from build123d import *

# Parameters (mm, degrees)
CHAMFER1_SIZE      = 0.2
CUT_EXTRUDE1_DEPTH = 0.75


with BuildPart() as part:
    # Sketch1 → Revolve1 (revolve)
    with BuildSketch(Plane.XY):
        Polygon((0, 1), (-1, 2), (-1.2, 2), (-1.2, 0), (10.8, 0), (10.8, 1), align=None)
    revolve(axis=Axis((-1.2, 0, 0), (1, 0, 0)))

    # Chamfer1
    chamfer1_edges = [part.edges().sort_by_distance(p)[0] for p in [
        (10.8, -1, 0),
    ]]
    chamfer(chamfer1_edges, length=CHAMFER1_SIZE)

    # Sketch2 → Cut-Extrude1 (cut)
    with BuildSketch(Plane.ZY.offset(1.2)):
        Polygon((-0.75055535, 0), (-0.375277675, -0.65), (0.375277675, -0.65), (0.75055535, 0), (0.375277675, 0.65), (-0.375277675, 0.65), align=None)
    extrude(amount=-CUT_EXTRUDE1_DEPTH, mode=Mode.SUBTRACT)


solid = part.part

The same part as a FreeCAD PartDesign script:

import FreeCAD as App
import Part
import Sketcher
Q = App.Units.Quantity


def edges_at(feature, points):
    """Names of the edges that pass closest to the given points."""
    edges = feature.Shape.Edges
    near = lambda p: min(range(len(edges)), key=lambda i: edges[i].distToShape(Part.Vertex(*p))[0])
    return sorted({f"Edge{near(p) + 1}" for p in points})

doc = App.newDocument("Part")
body = doc.addObject("PartDesign::Body", "Body")

sketch1 = body.newObject("Sketcher::SketchObject", "Sketch")
sketch1.AttachmentSupport = (doc.getObject("XY_Plane"), [""])
sketch1.MapMode = "FlatFace"
sketch1.addGeometry(Part.LineSegment(App.Vector(0, 1, 0), App.Vector(-1, 2, 0)), False)
sketch1.addGeometry(Part.LineSegment(App.Vector(-1, 2, 0), App.Vector(-1.2, 2, 0)), False)
sketch1.addGeometry(Part.LineSegment(App.Vector(-1.2, 2, 0), App.Vector(-1.2, 0, 0)), False)
sketch1.addGeometry(Part.LineSegment(App.Vector(-1.2, 0, 0), App.Vector(10.8, 0, 0)), False)
sketch1.addGeometry(Part.LineSegment(App.Vector(10.8, 0, 0), App.Vector(10.8, 1, 0)), False)
sketch1.addGeometry(Part.LineSegment(App.Vector(10.8, 1, 0), App.Vector(0, 1, 0)), False)
sketch1.addConstraint(Sketcher.Constraint("Coincident", 0, 2, 1, 1))
sketch1.addConstraint(Sketcher.Constraint("Coincident", 1, 2, 2, 1))
sketch1.addConstraint(Sketcher.Constraint("Coincident", 2, 2, 3, 1))
sketch1.addConstraint(Sketcher.Constraint("Coincident", 3, 2, 4, 1))
sketch1.addConstraint(Sketcher.Constraint("Coincident", 4, 2, 5, 1))
sketch1.addConstraint(Sketcher.Constraint("Coincident", 5, 2, 0, 1))
sketch1.addConstraint(Sketcher.Constraint("Horizontal", 1))
sketch1.addConstraint(Sketcher.Constraint("Vertical", 2))
sketch1.addConstraint(Sketcher.Constraint("Horizontal", 3))
sketch1.addConstraint(Sketcher.Constraint("Vertical", 4))
sketch1.addConstraint(Sketcher.Constraint("Horizontal", 5))
sketch1.addConstraint(Sketcher.Constraint("PointOnObject", 2, 2, -1))
sketch1.addConstraint(Sketcher.Constraint("PointOnObject", 5, 2, -2))
sketch1.addConstraint(Sketcher.Constraint("DistanceX", 3, 1, 3, 2, Q("12 mm")))
sketch1.addConstraint(Sketcher.Constraint("DistanceY", 2, 2, 2, 1, Q("2 mm")))
sketch1.addConstraint(Sketcher.Constraint("DistanceY", 4, 1, 4, 2, Q("1 mm")))
sketch1.addConstraint(Sketcher.Constraint("Angle", 0, Q("135 deg")))
sketch1.addConstraint(Sketcher.Constraint("DistanceX", 1, 2, 1, 1, Q("0.2 mm")))
revolution = body.newObject("PartDesign::Revolution", "Revolution")
revolution.Profile = sketch1
revolution.ReferenceAxis = (sketch1, ["H_Axis"])
revolution.Angle = 360
doc.recompute()

chamfer = body.newObject("PartDesign::Chamfer", "Chamfer")
chamfer.Base = (revolution, edges_at(revolution, [(10.8, -1, 0)]))
chamfer.Size = 0.2

sketch2 = body.newObject("Sketcher::SketchObject", "Sketch001")
sketch2.AttachmentSupport = (doc.getObject("YZ_Plane"), [""])
sketch2.MapMode = "FlatFace"
sketch2.AttachmentOffset = App.Placement(App.Vector(0, 0, -1.2), App.Rotation())
sketch2.addGeometry(Part.LineSegment(App.Vector(0, -0.750555, 0), App.Vector(-0.65, -0.375278, 0)), False)
sketch2.addGeometry(Part.LineSegment(App.Vector(-0.65, -0.375278, 0), App.Vector(-0.65, 0.375278, 0)), False)
sketch2.addGeometry(Part.LineSegment(App.Vector(-0.65, 0.375278, 0), App.Vector(0, 0.750555, 0)), False)
sketch2.addGeometry(Part.LineSegment(App.Vector(0, 0.750555, 0), App.Vector(0.65, 0.375278, 0)), False)
sketch2.addGeometry(Part.LineSegment(App.Vector(0.65, 0.375278, 0), App.Vector(0.65, -0.375278, 0)), False)
sketch2.addGeometry(Part.LineSegment(App.Vector(0.65, -0.375278, 0), App.Vector(0, -0.750555, 0)), False)
sketch2.addConstraint(Sketcher.Constraint("Coincident", 0, 2, 1, 1))
sketch2.addConstraint(Sketcher.Constraint("Coincident", 1, 2, 2, 1))
sketch2.addConstraint(Sketcher.Constraint("Coincident", 2, 2, 3, 1))
sketch2.addConstraint(Sketcher.Constraint("Coincident", 3, 2, 4, 1))
sketch2.addConstraint(Sketcher.Constraint("Coincident", 4, 2, 5, 1))
sketch2.addConstraint(Sketcher.Constraint("Coincident", 5, 2, 0, 1))
sketch2.addConstraint(Sketcher.Constraint("Vertical", 1))
sketch2.addConstraint(Sketcher.Constraint("Vertical", 4))
sketch2.addConstraint(Sketcher.Constraint("Symmetric", 0, 2, 3, 2, -1, 1))
sketch2.addConstraint(Sketcher.Constraint("Symmetric", 2, 2, 5, 2, -1, 1))
sketch2.addConstraint(Sketcher.Constraint("PointOnObject", 2, 2, -2))
sketch2.addConstraint(Sketcher.Constraint("Parallel", 2, 5))
sketch2.addConstraint(Sketcher.Constraint("Horizontal", 1, 2, 3, 2))
sketch2.addConstraint(Sketcher.Constraint("Angle", 0, Q("150 deg")))
sketch2.addConstraint(Sketcher.Constraint("DistanceX", 1, 2, 3, 2, Q("1.3 mm")))
sketch2.addConstraint(Sketcher.Constraint("DistanceY", 1, 1, 1, 2, Q("0.750555 mm")))
pocket1 = body.newObject("PartDesign::Pocket", "Pocket")
pocket1.Profile = sketch2
pocket1.Length = 0.75
pocket1.Reversed = True

doc.recompute()
